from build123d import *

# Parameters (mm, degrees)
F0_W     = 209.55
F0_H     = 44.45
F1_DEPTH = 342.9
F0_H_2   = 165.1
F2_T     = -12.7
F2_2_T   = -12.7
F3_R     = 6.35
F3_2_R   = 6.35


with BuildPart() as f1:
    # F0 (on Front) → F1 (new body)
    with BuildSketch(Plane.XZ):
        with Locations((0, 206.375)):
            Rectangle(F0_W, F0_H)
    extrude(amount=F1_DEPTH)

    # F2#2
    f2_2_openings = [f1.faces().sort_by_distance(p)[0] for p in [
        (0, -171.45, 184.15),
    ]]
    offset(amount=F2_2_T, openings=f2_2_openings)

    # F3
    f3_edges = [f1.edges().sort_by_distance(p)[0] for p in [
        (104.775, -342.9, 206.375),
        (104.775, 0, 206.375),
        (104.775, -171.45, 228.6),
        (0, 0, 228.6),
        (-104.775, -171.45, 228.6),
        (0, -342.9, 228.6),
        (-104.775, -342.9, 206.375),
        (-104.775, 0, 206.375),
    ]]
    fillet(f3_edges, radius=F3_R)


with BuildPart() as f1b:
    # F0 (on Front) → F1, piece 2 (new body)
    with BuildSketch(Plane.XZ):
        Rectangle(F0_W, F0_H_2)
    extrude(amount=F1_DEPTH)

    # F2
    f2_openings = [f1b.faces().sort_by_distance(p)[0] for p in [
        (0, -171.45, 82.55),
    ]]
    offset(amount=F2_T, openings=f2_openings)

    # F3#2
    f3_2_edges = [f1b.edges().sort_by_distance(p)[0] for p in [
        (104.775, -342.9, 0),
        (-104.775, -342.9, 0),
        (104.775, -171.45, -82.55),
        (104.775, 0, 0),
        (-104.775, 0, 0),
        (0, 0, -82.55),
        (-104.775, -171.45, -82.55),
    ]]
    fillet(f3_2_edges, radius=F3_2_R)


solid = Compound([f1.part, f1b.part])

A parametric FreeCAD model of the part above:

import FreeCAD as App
import Part
import Sketcher
Q = App.Units.Quantity


def edges_at(feature, points):
    """Names of the edges that pass closest to the given points."""
    edges = feature.Shape.Edges
    near = lambda p: min(range(len(edges)), key=lambda i: edges[i].distToShape(Part.Vertex(*p))[0])
    return sorted({f"Edge{near(p) + 1}" for p in points})


def faces_at(feature, points):
    """Names of the faces that lie closest to the given points."""
    faces = feature.Shape.Faces
    near = lambda p: min(range(len(faces)), key=lambda i: faces[i].distToShape(Part.Vertex(*p))[0])
    return sorted({f"Face{near(p) + 1}" for p in points})

doc = App.newDocument("Part")
body = doc.addObject("PartDesign::Body", "Body")

sketch1 = body.newObject("Sketcher::SketchObject", "Sketch")
sketch1.AttachmentSupport = (doc.getObject("XZ_Plane"), [""])
sketch1.MapMode = "FlatFace"
sketch1.addGeometry([
    Part.LineSegment(App.Vector(-105, 229, 0), App.Vector(-105, 184, 0)),
    Part.LineSegment(App.Vector(-105, 184, 0), App.Vector(105, 184, 0)),
    Part.LineSegment(App.Vector(105, 184, 0), App.Vector(105, 229, 0)),
    Part.LineSegment(App.Vector(105, 229, 0), App.Vector(-105, 229, 0)),
], False)
sketch1.addConstraint([
    Sketcher.Constraint("Coincident", 0, 2, 1, 1),
    Sketcher.Constraint("Coincident", 1, 2, 2, 1),
    Sketcher.Constraint("Coincident", 2, 2, 3, 1),
    Sketcher.Constraint("Coincident", 3, 2, 0, 1),
    Sketcher.Constraint("Vertical", 0),
    Sketcher.Constraint("Horizontal", 1),
    Sketcher.Constraint("Vertical", 2),
    Sketcher.Constraint("Horizontal", 3),
    Sketcher.Constraint("DistanceY", -1, 1, 2, 2, Q("9 in")),
    Sketcher.Constraint("DistanceX", 1, 1, 1, 2, Q("8.25 in")),
    Sketcher.Constraint("DistanceY", 0, 2, 0, 1, Q("1.75 in")),
    Sketcher.Constraint("DistanceX", 0, 2, -1, 1, Q("4.125 in")),
])
pad1 = body.newObject("PartDesign::Pad", "Pad")
pad1.Profile = sketch1
pad1.Length = Q("13.5 in")
doc.recompute()

thickness = body.newObject("PartDesign::Thickness", "Thickness")
thickness.Base = (pad1, faces_at(pad1, [(0, -171.45, 184.15)]))
thickness.Value = Q("0.5 in")
thickness.Reversed = True
thickness.Join = "Arc"
doc.recompute()

fillet = body.newObject("PartDesign::Fillet", "Fillet")
fillet.Base = (thickness, edges_at(thickness, [
    (104.775, -342.9, 206.375),
    (104.775, 0, 206.375),
    (104.775, -171.45, 228.6),
    (0, 0, 228.6),
    (-104.775, -171.45, 228.6),
    (0, -342.9, 228.6),
    (-104.775, -342.9, 206.375),
    (-104.775, 0, 206.375),
]))
fillet.Radius = Q("0.25 in")
body2 = doc.addObject("PartDesign::Body", "Body001")

sketch2 = body2.newObject("Sketcher::SketchObject", "Sketch001")
sketch2.AttachmentSupport = (doc.getObject("XZ_Plane001"), [""])
sketch2.MapMode = "FlatFace"
sketch2.addGeometry([
    Part.LineSegment(App.Vector(-105, 83, 0), App.Vector(-105, -83, 0)),
    Part.LineSegment(App.Vector(-105, -83, 0), App.Vector(105, -83, 0)),
    Part.LineSegment(App.Vector(105, -83, 0), App.Vector(105, 83, 0)),
    Part.LineSegment(App.Vector(105, 83, 0), App.Vector(-105, 83, 0)),
], False)
sketch2.addConstraint([
    Sketcher.Constraint("Coincident", 0, 2, 1, 1),
    Sketcher.Constraint("Coincident", 1, 2, 2, 1),
    Sketcher.Constraint("Coincident", 2, 2, 3, 1),
    Sketcher.Constraint("Coincident", 3, 2, 0, 1),
    Sketcher.Constraint("Vertical", 0),
    Sketcher.Constraint("Horizontal", 1),
    Sketcher.Constraint("Vertical", 2),
    Sketcher.Constraint("Horizontal", 3),
    Sketcher.Constraint("Symmetric", 0, 2, 2, 2, -1, 1),
    Sketcher.Constraint("DistanceY", 0, 2, 0, 1, Q("6.5 in")),
    Sketcher.Constraint("DistanceX", 1, 1, 1, 2, Q("8.25 in")),
])
pad2 = body2.newObject("PartDesign::Pad", "Pad001")
pad2.Profile = sketch2
pad2.Length = Q("13.5 in")
doc.recompute()

thickness2 = body2.newObject("PartDesign::Thickness", "Thickness001")
thickness2.Base = (pad2, faces_at(pad2, [(0, -171.45, 82.55)]))
thickness2.Value = Q("0.5 in")
thickness2.Reversed = True
thickness2.Join = "Arc"
doc.recompute()

fillet2 = body2.newObject("PartDesign::Fillet", "Fillet001")
fillet2.Base = (thickness2, edges_at(thickness2, [
    (104.775, -342.9, 0),
    (-104.775, -342.9, 0),
    (104.775, -171.45, -82.55),
    (104.775, 0, 0),
    (-104.775, 0, 0),
    (0, 0, -82.55),
    (-104.775, -171.45, -82.55),
]))
fillet2.Radius = Q("0.25 in")

doc.recompute()
